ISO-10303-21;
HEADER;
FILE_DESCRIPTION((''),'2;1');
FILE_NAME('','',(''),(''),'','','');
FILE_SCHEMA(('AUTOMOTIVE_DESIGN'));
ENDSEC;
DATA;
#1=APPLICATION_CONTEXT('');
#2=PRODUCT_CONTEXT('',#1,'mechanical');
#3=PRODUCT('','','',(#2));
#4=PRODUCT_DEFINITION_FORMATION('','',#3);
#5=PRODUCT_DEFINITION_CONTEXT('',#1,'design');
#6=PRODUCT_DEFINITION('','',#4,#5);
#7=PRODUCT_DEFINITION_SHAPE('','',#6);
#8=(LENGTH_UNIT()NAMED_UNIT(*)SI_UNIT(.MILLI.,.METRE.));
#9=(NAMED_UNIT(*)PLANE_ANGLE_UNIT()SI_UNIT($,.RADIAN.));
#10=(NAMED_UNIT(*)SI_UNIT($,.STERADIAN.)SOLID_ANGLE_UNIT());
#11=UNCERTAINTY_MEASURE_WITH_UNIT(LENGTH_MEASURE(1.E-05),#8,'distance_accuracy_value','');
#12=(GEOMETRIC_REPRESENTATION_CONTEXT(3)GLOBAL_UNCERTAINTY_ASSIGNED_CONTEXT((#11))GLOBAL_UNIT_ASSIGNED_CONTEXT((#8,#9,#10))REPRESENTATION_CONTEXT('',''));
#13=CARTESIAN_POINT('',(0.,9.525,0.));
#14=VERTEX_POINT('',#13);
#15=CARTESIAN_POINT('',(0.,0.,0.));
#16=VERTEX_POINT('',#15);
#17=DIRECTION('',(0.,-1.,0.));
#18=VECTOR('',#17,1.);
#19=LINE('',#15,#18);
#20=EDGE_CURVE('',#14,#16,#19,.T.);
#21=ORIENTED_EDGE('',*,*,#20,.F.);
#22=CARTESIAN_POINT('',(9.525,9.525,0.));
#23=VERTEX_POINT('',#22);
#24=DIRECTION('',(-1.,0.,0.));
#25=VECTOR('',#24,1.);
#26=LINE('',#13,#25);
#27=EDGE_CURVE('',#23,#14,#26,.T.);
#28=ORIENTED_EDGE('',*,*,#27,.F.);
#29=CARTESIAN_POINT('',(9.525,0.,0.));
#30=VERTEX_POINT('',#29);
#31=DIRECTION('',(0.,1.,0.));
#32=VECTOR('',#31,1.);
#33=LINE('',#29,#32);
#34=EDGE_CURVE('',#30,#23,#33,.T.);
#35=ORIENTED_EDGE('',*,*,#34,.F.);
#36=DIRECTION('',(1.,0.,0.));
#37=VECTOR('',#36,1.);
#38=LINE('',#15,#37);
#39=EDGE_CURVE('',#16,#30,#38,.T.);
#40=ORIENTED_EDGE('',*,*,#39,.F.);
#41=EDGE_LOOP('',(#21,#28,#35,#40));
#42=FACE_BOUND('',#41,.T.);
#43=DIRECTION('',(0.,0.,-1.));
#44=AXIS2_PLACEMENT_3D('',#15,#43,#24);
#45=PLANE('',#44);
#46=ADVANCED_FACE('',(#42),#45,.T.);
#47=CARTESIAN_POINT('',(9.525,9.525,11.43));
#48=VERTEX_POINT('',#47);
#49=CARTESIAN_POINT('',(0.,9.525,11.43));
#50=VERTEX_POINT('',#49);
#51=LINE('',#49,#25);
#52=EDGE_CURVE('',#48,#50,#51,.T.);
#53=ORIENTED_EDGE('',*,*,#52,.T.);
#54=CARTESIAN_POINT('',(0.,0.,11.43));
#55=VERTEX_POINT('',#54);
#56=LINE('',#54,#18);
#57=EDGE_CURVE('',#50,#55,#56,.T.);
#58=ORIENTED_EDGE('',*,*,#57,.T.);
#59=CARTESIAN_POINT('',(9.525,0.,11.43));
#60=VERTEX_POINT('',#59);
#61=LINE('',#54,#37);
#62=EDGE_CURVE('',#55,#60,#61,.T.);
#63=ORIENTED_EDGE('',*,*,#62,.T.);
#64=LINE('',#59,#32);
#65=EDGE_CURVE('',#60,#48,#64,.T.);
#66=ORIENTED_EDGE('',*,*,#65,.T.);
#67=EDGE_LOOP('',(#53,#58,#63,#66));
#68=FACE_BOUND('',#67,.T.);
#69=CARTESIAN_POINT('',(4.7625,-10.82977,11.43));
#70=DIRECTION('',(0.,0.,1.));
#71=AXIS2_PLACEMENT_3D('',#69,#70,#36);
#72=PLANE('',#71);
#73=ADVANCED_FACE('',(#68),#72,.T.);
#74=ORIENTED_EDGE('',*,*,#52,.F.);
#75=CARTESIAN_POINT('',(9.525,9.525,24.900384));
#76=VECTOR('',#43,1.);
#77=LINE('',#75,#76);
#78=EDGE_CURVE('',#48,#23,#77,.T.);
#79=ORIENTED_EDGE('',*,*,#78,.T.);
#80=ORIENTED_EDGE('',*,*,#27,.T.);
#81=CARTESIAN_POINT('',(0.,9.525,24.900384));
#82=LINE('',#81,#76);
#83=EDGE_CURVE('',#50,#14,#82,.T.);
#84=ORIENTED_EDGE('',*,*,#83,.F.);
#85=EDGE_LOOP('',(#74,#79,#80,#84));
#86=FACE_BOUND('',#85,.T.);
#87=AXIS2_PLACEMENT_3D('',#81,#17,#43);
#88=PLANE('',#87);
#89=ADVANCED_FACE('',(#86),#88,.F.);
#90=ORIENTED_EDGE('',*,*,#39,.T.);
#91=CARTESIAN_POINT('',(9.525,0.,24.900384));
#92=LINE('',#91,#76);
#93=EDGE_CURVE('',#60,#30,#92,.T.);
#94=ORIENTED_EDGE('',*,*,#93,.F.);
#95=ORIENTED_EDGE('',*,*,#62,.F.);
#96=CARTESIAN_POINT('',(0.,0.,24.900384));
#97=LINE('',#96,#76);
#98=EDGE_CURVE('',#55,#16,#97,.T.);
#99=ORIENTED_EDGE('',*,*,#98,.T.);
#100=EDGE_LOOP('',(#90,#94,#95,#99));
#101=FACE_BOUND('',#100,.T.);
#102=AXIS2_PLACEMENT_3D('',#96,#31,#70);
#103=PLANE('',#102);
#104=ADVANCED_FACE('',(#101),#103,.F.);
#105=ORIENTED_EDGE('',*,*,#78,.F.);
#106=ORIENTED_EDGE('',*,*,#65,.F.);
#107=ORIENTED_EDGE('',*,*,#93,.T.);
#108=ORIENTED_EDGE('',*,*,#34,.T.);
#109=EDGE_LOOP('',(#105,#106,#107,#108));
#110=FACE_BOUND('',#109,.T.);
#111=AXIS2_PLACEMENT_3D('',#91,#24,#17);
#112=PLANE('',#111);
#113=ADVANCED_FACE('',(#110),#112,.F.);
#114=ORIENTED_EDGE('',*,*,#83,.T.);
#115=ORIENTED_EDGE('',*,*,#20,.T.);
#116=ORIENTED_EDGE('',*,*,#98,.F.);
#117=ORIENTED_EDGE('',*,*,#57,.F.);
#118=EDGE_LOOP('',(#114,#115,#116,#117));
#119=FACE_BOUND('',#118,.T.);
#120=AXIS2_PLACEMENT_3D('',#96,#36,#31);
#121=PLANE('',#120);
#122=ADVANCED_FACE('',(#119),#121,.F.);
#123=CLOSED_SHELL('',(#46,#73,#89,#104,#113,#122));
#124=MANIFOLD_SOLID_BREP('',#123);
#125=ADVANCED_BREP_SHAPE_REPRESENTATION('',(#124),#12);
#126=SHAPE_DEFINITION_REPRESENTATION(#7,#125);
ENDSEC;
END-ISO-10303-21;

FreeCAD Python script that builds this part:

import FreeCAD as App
import Part
import Sketcher

V = App.Vector
Q = App.Units.Quantity


def add_polygon(sketch, points):
    """Adds a closed chain of lines whose ends are joined by coincident constraints."""
    first, n = sketch.GeometryCount, len(points)
    for a, b in zip(points, points[1:] + points[:1]):
        sketch.addGeometry(Part.LineSegment(App.Vector(*a, 0), App.Vector(*b, 0)), False)
    for i in range(n):
        sketch.addConstraint(Sketcher.Constraint("Coincident", first + i, 2, first + (i + 1) % n, 1))

doc = App.newDocument("Part")
body = doc.addObject("PartDesign::Body", "Body")

# Sketch on XY plane
sketch1 = doc.addObject("Sketcher::SketchObject", "Sketch")
body.addObject(sketch1)
sketch1.AttachmentSupport = (doc.XY_Plane, [""])
sketch1.MapMode = "FlatFace"
add_polygon(sketch1, [(0, 10), (0, 0), (10, 0), (10, 10)])  # lines 0-3
sketch1.addConstraint([
    Sketcher.Constraint("Vertical", 0),
    Sketcher.Constraint("Horizontal", 1),
    Sketcher.Constraint("Vertical", 2),
    Sketcher.Constraint("Horizontal", 3),
    Sketcher.Constraint("Coincident", 0, 2, -1, 1),
    Sketcher.Constraint("Equal", 3, 0),
    Sketcher.Constraint("DistanceX", 1, 1, 1, 2, Q("0.375 in")),
])
pad1 = doc.addObject("PartDesign::Pad", "Pad")
body.addObject(pad1)
pad1.Profile = sketch1
pad1.Length = Q("0.45 in")

doc.recompute()
